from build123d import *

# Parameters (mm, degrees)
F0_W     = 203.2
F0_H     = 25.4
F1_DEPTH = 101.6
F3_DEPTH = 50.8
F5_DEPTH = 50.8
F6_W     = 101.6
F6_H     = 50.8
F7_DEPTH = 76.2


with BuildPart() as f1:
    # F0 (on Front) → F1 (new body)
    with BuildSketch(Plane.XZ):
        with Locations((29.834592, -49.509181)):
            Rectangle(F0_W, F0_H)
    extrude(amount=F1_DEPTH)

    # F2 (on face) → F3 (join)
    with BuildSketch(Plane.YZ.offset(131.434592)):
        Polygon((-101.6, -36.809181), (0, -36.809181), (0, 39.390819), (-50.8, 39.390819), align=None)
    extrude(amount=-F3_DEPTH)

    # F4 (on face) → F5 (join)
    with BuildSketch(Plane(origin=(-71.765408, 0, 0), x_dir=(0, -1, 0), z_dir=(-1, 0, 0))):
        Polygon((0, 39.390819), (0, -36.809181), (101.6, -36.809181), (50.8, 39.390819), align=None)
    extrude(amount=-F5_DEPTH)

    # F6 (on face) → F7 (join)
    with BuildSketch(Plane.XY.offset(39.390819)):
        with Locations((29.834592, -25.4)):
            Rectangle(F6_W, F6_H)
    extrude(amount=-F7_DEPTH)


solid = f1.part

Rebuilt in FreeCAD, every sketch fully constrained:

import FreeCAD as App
import Part
import Sketcher
from FreeCAD import Vector
Q = App.Units.Quantity


def add_polygon(sketch, points):
    """Adds a closed chain of lines whose ends are joined by coincident constraints."""
    first, n = sketch.GeometryCount, len(points)
    for a, b in zip(points, points[1:] + points[:1]):
        sketch.addGeometry(Part.LineSegment(App.Vector(*a, 0), App.Vector(*b, 0)), False)
    for i in range(n):
        sketch.addConstraint(Sketcher.Constraint("Coincident", first + i, 2, first + (i + 1) % n, 1))

doc = App.newDocument("Part")
body = doc.addObject("PartDesign::Body", "Body")

# Sketch on XZ plane
sketch1 = doc.addObject("Sketcher::SketchObject", "Sketch")
body.addObject(sketch1)
sketch1.AttachmentSupport = (doc.XZ_Plane, [""])
sketch1.MapMode = "FlatFace"
add_polygon(sketch1, [(-72, -37), (-72, -62), (131, -62), (131, -37)])  # lines 0-3
sketch1.addConstraint(Sketcher.Constraint("Vertical", 0))
sketch1.addConstraint(Sketcher.Constraint("Horizontal", 1))
sketch1.addConstraint(Sketcher.Constraint("Vertical", 2))
sketch1.addConstraint(Sketcher.Constraint("Horizontal", 3))
sketch1.addConstraint(Sketcher.Constraint("DistanceX", 1, 1, 1, 2, Q("8 in")))
sketch1.addConstraint(Sketcher.Constraint("DistanceY", 0, 2, 0, 1, Q("1 in")))
sketch1.addConstraint(Sketcher.Constraint("DistanceY", 0, 2, -1, 1, Q("62.209181 mm")))
sketch1.addConstraint(Sketcher.Constraint("DistanceX", 0, 2, -1, 1, Q("71.765408 mm")))
pad1 = doc.addObject("PartDesign::Pad", "Pad")
body.addObject(pad1)
pad1.Profile = sketch1
pad1.Length = Q("4 in")

# Sketch on YZ plane
sketch2 = doc.addObject("Sketcher::SketchObject", "Sketch001")
body.addObject(sketch2)
sketch2.AttachmentSupport = (doc.YZ_Plane, [""])
sketch2.MapMode = "FlatFace"
sketch2.AttachmentOffset = App.Placement(Vector(0, 0, 131.434592), App.Rotation())
add_polygon(sketch2, [(-102, -37), (0, -37), (0, 39), (-51, 39)])  # lines 0-3
sketch2.addConstraint(Sketcher.Constraint("Horizontal", 0))
sketch2.addConstraint(Sketcher.Constraint("Vertical", 1))
sketch2.addConstraint(Sketcher.Constraint("Horizontal", 2))
sketch2.addConstraint(Sketcher.Constraint("PointOnObject", 0, 2, -2))
sketch2.addConstraint(Sketcher.Constraint("DistanceX", 0, 1, 0, 2, Q("4 in")))
sketch2.addConstraint(Sketcher.Constraint("DistanceX", 2, 2, 2, 1, Q("2 in")))
sketch2.addConstraint(Sketcher.Constraint("DistanceY", 1, 1, 1, 2, Q("3 in")))
sketch2.addConstraint(Sketcher.Constraint("DistanceY", 0, 2, -1, 1, Q("36.809181 mm")))
pad2 = doc.addObject("PartDesign::Pad", "Pad001")
body.addObject(pad2)
pad2.Profile = sketch2
pad2.Length = Q("2 in")
pad2.Reversed = True

# Sketch on YZ plane
sketch3 = doc.addObject("Sketcher::SketchObject", "Sketch002")
body.addObject(sketch3)
sketch3.AttachmentSupport = (doc.YZ_Plane, [""])
sketch3.MapMode = "FlatFace"
sketch3.AttachmentOffset = App.Placement(Vector(0, 0, -71.765408), App.Rotation())
add_polygon(sketch3, [(0, 39), (0, -37), (-102, -37), (-51, 39)])  # lines 0-3
sketch3.addConstraint(Sketcher.Constraint("Vertical", 0))
sketch3.addConstraint(Sketcher.Constraint("Horizontal", 1))
sketch3.addConstraint(Sketcher.Constraint("Horizontal", 3))
sketch3.addConstraint(Sketcher.Constraint("PointOnObject", 0, 2, -2))
sketch3.addConstraint(Sketcher.Constraint("DistanceX", 1, 2, 1, 1, Q("4 in")))
sketch3.addConstraint(Sketcher.Constraint("DistanceX", 3, 1, 3, 2, Q("2 in")))
sketch3.addConstraint(Sketcher.Constraint("DistanceY", 0, 2, 0, 1, Q("3 in")))
sketch3.addConstraint(Sketcher.Constraint("DistanceY", 0, 2, -1, 1, Q("36.809181 mm")))
pad3 = doc.addObject("PartDesign::Pad", "Pad002")
body.addObject(pad3)
pad3.Profile = sketch3
pad3.Length = Q("2 in")

# Sketch on XY plane
sketch4 = doc.addObject("Sketcher::SketchObject", "Sketch003")
body.addObject(sketch4)
sketch4.AttachmentSupport = (doc.XY_Plane, [""])
sketch4.MapMode = "FlatFace"
sketch4.AttachmentOffset = App.Placement(Vector(0, 0, 39.390819), App.Rotation())
add_polygon(sketch4, [(-21, 0), (-21, -51), (81, -51), (81, 0)])  # lines 0-3
sketch4.addConstraint(Sketcher.Constraint("Vertical", 0))
sketch4.addConstraint(Sketcher.Constraint("Horizontal", 1))
sketch4.addConstraint(Sketcher.Constraint("Vertical", 2))
sketch4.addConstraint(Sketcher.Constraint("Horizontal", 3))
sketch4.addConstraint(Sketcher.Constraint("PointOnObject", 2, 2, -1))
sketch4.addConstraint(Sketcher.Constraint("DistanceX", 1, 1, 1, 2, Q("4 in")))
sketch4.addConstraint(Sketcher.Constraint("DistanceY", 0, 2, 0, 1, Q("2 in")))
sketch4.addConstraint(Sketcher.Constraint("DistanceX", 0, 2, -1, 1, Q("20.965408 mm")))
pad4 = doc.addObject("PartDesign::Pad", "Pad003")
body.addObject(pad4)
pad4.Profile = sketch4
pad4.Length = Q("3 in")
pad4.Reversed = True

doc.recompute()
